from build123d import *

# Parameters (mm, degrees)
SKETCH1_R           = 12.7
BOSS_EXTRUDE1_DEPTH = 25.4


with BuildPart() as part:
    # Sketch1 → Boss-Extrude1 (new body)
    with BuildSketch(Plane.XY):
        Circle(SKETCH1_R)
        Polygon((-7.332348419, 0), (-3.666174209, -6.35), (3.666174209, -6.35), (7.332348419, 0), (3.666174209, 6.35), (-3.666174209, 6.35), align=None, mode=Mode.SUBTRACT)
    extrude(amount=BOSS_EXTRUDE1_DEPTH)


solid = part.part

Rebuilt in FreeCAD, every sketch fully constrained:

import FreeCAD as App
import Part
import Sketcher

V = App.Vector
Q = App.Units.Quantity

doc = App.newDocument("Part")
body = doc.addObject("PartDesign::Body", "Body")

sketch1 = body.newObject("Sketcher::SketchObject", "Sketch")
sketch1.AttachmentSupport = (doc.getObject("XY_Plane"), [""])
sketch1.MapMode = "FlatFace"
sketch1.addGeometry([
    Part.Circle(V(0, 0, 0), V(0, 0, 1), 12.7),
    Part.LineSegment(V(-3.666174, -6.35, 0), V(-7.332348, 0, 0)),
    Part.LineSegment(V(-7.332348, 0, 0), V(-3.666174, 6.35, 0)),
    Part.LineSegment(V(-3.666174, 6.35, 0), V(3.666174, 6.35, 0)),
    Part.LineSegment(V(3.666174, 6.35, 0), V(7.332348, 0, 0)),
    Part.LineSegment(V(7.332348, 0, 0), V(3.666174, -6.35, 0)),
    Part.LineSegment(V(3.666174, -6.35, 0), V(-3.666174, -6.35, 0)),
], False)
sketch1.addConstraint([
    Sketcher.Constraint("Coincident", 1, 2, 2, 1),
    Sketcher.Constraint("Coincident", 2, 2, 3, 1),
    Sketcher.Constraint("Coincident", 3, 2, 4, 1),
    Sketcher.Constraint("Coincident", 4, 2, 5, 1),
    Sketcher.Constraint("Coincident", 5, 2, 6, 1),
    Sketcher.Constraint("Coincident", 6, 2, 1, 1),
    Sketcher.Constraint("Horizontal", 3),
    Sketcher.Constraint("Horizontal", 6),
    Sketcher.Constraint("Coincident", 0, 3, -1, 1),
    Sketcher.Constraint("Symmetric", 1, 2, 4, 2, -1, 1),
    Sketcher.Constraint("Symmetric", 2, 2, 5, 2, -1, 1),
    Sketcher.Constraint("PointOnObject", 1, 2, -1),
    Sketcher.Constraint("Parallel", 1, 4),
    Sketcher.Constraint("Vertical", 3, 2, 5, 2),
    Sketcher.Constraint("Diameter", 0, Q("1 in")),
    Sketcher.Constraint("Angle", 1, Q("120 deg")),
    Sketcher.Constraint("DistanceY", 5, 2, 3, 2, Q("0.5 in")),
    Sketcher.Constraint("DistanceX", 3, 1, 3, 2, 7.332348),
])
pad1 = body.newObject("PartDesign::Pad", "Pad")
pad1.Profile = sketch1
pad1.Length = Q("1 in")

doc.recompute()
